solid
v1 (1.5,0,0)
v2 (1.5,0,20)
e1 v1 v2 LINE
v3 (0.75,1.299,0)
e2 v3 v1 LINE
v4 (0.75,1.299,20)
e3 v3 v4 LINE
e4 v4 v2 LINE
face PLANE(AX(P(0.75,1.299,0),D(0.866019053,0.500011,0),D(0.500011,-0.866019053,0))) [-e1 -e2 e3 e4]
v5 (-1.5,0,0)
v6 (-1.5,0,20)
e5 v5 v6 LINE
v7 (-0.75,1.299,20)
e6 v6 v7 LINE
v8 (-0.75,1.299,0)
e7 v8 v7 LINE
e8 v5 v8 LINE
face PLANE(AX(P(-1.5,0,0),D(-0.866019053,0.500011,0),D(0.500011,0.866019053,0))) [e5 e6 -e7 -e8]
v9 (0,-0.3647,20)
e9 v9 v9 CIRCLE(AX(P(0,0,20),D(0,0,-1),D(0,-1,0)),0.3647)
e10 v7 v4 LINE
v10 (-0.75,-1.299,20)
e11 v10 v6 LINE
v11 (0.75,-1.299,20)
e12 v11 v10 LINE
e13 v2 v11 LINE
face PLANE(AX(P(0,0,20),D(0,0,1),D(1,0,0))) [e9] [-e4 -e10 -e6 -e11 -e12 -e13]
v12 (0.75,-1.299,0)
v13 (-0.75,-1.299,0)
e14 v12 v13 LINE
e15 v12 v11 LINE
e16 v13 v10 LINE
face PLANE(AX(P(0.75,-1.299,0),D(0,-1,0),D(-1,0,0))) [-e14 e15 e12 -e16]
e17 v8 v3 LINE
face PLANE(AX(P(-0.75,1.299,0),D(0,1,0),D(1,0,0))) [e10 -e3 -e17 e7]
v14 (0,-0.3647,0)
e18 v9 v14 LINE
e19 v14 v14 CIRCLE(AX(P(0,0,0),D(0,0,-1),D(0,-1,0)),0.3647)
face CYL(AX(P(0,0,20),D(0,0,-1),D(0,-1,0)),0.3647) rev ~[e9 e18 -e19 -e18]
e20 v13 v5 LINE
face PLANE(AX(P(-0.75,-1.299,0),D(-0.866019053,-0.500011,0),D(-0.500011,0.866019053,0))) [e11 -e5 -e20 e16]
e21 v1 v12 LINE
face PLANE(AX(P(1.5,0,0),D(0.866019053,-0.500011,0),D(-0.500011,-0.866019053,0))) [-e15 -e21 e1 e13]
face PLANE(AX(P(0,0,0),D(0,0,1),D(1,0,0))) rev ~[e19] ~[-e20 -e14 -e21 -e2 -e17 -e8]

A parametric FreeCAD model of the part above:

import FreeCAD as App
import Part
import Sketcher

V = App.Vector
Q = App.Units.Quantity

doc = App.newDocument("Part")
body = doc.addObject("PartDesign::Body", "Body")

sketch1 = body.newObject("Sketcher::SketchObject", "Sketch")
sketch1.AttachmentSupport = (doc.getObject("XY_Plane"), [""])
sketch1.MapMode = "FlatFace"
sketch1.addGeometry(Part.LineSegment(V(1.5, 0, 0), V(0.75, 1.299, 0)), False)
sketch1.addGeometry(Part.LineSegment(V(0.75, 1.299, 0), V(-0.75, 1.299, 0)), False)
sketch1.addGeometry(Part.LineSegment(V(-0.75, 1.299, 0), V(-1.5, 0, 0)), False)
sketch1.addGeometry(Part.LineSegment(V(-1.5, 0, 0), V(-0.75, -1.299, 0)), False)
sketch1.addGeometry(Part.LineSegment(V(-0.75, -1.299, 0), V(0.75, -1.299, 0)), False)
sketch1.addGeometry(Part.LineSegment(V(0.75, -1.299, 0), V(1.5, 0, 0)), False)
sketch1.addConstraint(Sketcher.Constraint("Coincident", 0, 2, 1, 1))
sketch1.addConstraint(Sketcher.Constraint("Coincident", 1, 2, 2, 1))
sketch1.addConstraint(Sketcher.Constraint("Coincident", 2, 2, 3, 1))
sketch1.addConstraint(Sketcher.Constraint("Coincident", 3, 2, 4, 1))
sketch1.addConstraint(Sketcher.Constraint("Coincident", 4, 2, 5, 1))
sketch1.addConstraint(Sketcher.Constraint("Coincident", 5, 2, 0, 1))
sketch1.addConstraint(Sketcher.Constraint("Horizontal", 1))
sketch1.addConstraint(Sketcher.Constraint("Horizontal", 4))
sketch1.addConstraint(Sketcher.Constraint("Symmetric", 0, 2, 3, 2, -1, 1))
sketch1.addConstraint(Sketcher.Constraint("Symmetric", 2, 2, 5, 2, -1, 1))
sketch1.addConstraint(Sketcher.Constraint("PointOnObject", 2, 2, -1))
sketch1.addConstraint(Sketcher.Constraint("Parallel", 2, 5))
sketch1.addConstraint(Sketcher.Constraint("Vertical", 1, 2, 3, 2))
sketch1.addConstraint(Sketcher.Constraint("DistanceX", 2, 2, 5, 2, 3.0))
sketch1.addConstraint(Sketcher.Constraint("Angle", 0, Q("120.0007 deg")))
sketch1.addConstraint(Sketcher.Constraint("DistanceX", 1, 2, 1, 1, 1.5))
pad1 = body.newObject("PartDesign::Pad", "Pad")
pad1.Profile = sketch1
pad1.Length = 20

sketch2 = body.newObject("Sketcher::SketchObject", "Sketch001")
sketch2.AttachmentSupport = (doc.getObject("XY_Plane"), [""])
sketch2.MapMode = "FlatFace"
sketch2.AttachmentOffset = App.Placement(V(0, 0, 20), App.Rotation())
sketch2.addGeometry(Part.Circle(V(0, 0, 0), V(0, 0, 1), 0.3647), False)
sketch2.addConstraint(Sketcher.Constraint("Coincident", 0, 3, -1, 1))
sketch2.addConstraint(Sketcher.Constraint("Diameter", 0, 0.7294))
doc.recompute()
hole = body.newObject("PartDesign::Hole", "Hole")
hole.Profile = sketch2
hole.ThreadType = "None"
hole.Diameter = 0.7294
hole.DepthType = "ThroughAll"

doc.recompute()
